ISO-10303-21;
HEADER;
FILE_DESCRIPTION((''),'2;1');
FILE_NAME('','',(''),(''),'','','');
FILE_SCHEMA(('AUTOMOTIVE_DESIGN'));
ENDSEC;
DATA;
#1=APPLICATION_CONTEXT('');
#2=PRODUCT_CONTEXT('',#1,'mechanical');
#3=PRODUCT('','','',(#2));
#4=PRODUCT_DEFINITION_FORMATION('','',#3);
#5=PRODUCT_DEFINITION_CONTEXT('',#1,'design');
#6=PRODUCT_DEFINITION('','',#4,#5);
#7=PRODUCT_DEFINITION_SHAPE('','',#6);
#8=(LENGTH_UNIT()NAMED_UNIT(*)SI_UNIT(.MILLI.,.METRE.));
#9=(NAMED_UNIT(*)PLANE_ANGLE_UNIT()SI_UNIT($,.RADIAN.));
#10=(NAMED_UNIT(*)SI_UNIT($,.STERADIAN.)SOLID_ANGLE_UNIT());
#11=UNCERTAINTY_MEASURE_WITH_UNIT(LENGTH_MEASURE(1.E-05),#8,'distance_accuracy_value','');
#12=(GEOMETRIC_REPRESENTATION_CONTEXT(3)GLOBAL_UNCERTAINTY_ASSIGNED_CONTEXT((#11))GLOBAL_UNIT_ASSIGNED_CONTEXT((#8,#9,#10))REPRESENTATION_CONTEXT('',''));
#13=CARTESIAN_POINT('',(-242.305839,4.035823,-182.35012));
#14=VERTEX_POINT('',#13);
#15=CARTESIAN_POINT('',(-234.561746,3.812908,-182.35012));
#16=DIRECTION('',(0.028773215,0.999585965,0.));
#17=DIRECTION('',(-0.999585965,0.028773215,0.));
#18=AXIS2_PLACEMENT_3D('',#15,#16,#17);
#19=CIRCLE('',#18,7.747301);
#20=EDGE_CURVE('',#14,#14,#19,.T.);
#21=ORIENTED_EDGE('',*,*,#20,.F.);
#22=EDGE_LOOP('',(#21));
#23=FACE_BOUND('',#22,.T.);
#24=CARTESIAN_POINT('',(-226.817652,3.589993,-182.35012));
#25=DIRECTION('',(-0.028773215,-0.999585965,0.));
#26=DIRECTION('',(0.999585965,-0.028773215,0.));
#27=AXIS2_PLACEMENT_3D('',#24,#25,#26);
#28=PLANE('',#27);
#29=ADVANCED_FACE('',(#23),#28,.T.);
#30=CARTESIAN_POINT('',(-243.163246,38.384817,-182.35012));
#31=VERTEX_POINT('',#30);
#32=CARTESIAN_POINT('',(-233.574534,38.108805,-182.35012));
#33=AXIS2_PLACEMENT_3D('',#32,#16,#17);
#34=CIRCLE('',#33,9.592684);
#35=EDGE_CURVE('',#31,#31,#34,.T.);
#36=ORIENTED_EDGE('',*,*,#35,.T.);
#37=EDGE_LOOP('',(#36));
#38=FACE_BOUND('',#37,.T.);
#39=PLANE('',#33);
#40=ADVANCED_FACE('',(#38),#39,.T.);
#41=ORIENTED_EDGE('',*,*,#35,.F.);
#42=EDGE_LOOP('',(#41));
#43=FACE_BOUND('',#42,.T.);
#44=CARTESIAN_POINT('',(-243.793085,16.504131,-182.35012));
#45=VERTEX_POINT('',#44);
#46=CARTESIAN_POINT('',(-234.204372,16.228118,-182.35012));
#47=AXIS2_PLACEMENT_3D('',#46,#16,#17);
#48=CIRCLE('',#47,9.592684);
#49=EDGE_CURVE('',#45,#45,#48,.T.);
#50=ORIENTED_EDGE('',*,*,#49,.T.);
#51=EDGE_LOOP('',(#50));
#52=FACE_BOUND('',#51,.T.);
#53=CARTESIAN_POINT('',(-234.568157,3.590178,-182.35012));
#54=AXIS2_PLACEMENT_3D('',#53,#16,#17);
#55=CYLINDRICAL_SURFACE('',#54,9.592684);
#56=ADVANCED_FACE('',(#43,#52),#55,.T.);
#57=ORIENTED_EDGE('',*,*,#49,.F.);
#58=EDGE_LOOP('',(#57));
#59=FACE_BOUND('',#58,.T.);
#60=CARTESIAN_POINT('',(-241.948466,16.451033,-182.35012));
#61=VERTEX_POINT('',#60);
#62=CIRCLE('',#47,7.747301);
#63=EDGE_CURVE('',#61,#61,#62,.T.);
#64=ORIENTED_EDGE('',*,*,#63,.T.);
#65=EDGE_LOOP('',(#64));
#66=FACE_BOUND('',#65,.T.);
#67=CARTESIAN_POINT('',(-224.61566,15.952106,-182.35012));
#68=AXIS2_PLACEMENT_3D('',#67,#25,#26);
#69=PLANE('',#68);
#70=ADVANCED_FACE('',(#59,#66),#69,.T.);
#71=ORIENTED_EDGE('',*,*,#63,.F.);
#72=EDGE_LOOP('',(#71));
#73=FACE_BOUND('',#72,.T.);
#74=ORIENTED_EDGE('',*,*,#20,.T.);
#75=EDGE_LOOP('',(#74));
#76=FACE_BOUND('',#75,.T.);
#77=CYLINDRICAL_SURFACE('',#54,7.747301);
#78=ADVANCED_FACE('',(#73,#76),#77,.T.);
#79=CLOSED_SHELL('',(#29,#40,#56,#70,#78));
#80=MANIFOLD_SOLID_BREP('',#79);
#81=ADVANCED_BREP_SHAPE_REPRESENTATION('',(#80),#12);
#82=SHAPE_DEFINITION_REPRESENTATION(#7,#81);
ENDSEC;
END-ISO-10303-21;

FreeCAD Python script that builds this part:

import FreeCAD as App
import Part
import Sketcher
from FreeCAD import Vector
Q = App.Units.Quantity


def add_polygon(sketch, points):
    """Adds a closed chain of lines whose ends are joined by coincident constraints."""
    first, n = sketch.GeometryCount, len(points)
    for a, b in zip(points, points[1:] + points[:1]):
        sketch.addGeometry(Part.LineSegment(App.Vector(*a, 0), App.Vector(*b, 0)), False)
    for i in range(n):
        sketch.addConstraint(Sketcher.Constraint("Coincident", first + i, 2, first + (i + 1) % n, 1))

doc = App.newDocument("Part")
body = doc.addObject("PartDesign::Body", "Body")

# Sketch on XY plane
sketch1 = body.newObject("Sketcher::SketchObject", "Sketch")
sketch1.AttachmentSupport = (doc.getObject("XY_Plane"), [""])
sketch1.MapMode = "FlatFace"
sketch1.AttachmentOffset = App.Placement(Vector(0, 0, -182.35012), App.Rotation())
add_polygon(sketch1, [(-226.8, 3.6), (-234.6, 3.8), (-233.6, 38.1), (-224, 37.8), (-224.6, 16), (-226.5, 16)])  # lines 0-5
sketch1.addGeometry(Part.LineSegment(Vector(-234.6, 3.8, 0), Vector(-233.6, 38.1, 0)), True)  # axis
sketch1.addConstraint([
    Sketcher.Constraint("Coincident", 6, 1, 0, 2),
    Sketcher.Constraint("Coincident", 6, 2, 1, 2),
    Sketcher.Constraint("Perpendicular", 0, 1),
    Sketcher.Constraint("Perpendicular", 1, 2),
    Sketcher.Constraint("Perpendicular", 2, 3),
    Sketcher.Constraint("Perpendicular", 3, 4),
    Sketcher.Constraint("Perpendicular", 4, 5),
    Sketcher.Constraint("Distance", 0, Q("7.747301 mm")),
    Sketcher.Constraint("DistanceY", 3, 2, 1, 2, Q("22.156699 mm")),
    Sketcher.Constraint("DistanceY", 4, 2, 1, 2, Q("22.103601 mm")),
    Sketcher.Constraint("DistanceY", 5, 2, 2, 2, Q("34.242799 mm")),
    Sketcher.Constraint("Distance", 3, Q("21.88975 mm")),
    Sketcher.Constraint("DistanceY", -1, 1, 0, 2, Q("3.812908 mm")),
    Sketcher.Constraint("DistanceX", 2, 2, -1, 1, Q("223.985821 mm")),
])
revolution = body.newObject("PartDesign::Revolution", "Revolution")
revolution.Profile = sketch1
revolution.ReferenceAxis = (sketch1, ["Axis0"])
revolution.Angle = 360

doc.recompute()
